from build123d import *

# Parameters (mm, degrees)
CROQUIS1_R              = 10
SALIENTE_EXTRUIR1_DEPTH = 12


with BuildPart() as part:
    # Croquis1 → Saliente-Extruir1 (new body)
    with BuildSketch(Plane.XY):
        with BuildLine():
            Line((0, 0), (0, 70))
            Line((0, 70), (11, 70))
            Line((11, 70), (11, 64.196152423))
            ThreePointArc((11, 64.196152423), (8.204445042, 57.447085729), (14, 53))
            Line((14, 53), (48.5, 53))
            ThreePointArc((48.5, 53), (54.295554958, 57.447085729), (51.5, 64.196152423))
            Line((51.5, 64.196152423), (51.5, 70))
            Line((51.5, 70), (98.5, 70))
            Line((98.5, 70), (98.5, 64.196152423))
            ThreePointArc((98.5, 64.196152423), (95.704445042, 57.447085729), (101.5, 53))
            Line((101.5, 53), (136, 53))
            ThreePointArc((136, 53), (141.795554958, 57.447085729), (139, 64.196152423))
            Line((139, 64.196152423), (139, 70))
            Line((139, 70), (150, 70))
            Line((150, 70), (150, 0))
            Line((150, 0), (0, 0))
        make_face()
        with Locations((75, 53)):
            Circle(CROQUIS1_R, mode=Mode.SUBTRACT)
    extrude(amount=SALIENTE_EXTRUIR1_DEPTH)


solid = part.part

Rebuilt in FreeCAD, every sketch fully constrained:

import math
import FreeCAD as App
import Part
import Sketcher
from FreeCAD import Vector
Q = App.Units.Quantity

doc = App.newDocument("Part")
body = doc.addObject("PartDesign::Body", "Body")

sketch1 = body.newObject("Sketcher::SketchObject", "Sketch")
sketch1.AttachmentSupport = (doc.getObject("XY_Plane"), [""])
sketch1.MapMode = "FlatFace"
sketch1.addGeometry([
    Part.LineSegment(Vector(0, 70, 0), Vector(0, 0, 0)),
    Part.LineSegment(Vector(0, 0, 0), Vector(150, 0, 0)),
    Part.LineSegment(Vector(150, 0, 0), Vector(150, 70, 0)),
    Part.LineSegment(Vector(150, 70, 0), Vector(139, 70, 0)),
    Part.LineSegment(Vector(139, 70, 0), Vector(139, 64, 0)),
    Part.ArcOfCircle(Part.Circle(Vector(136, 59, 0), Vector(0, 0, 1), 6), math.radians(-90), math.radians(60)),
    Part.LineSegment(Vector(136, 53, 0), Vector(102, 53, 0)),
    Part.ArcOfCircle(Part.Circle(Vector(102, 59, 0), Vector(0, 0, 1), 6), math.radians(120), math.radians(270)),
    Part.LineSegment(Vector(98, 64, 0), Vector(98, 70, 0)),
    Part.LineSegment(Vector(98, 70, 0), Vector(52, 70, 0)),
    Part.LineSegment(Vector(52, 70, 0), Vector(52, 64, 0)),
    Part.ArcOfCircle(Part.Circle(Vector(48, 59, 0), Vector(0, 0, 1), 6), math.radians(-90), math.radians(60)),
    Part.LineSegment(Vector(48, 53, 0), Vector(14, 53, 0)),
    Part.ArcOfCircle(Part.Circle(Vector(14, 59, 0), Vector(0, 0, 1), 6), math.radians(120), math.radians(270)),
    Part.LineSegment(Vector(11, 64, 0), Vector(11, 70, 0)),
    Part.LineSegment(Vector(11, 70, 0), Vector(0, 70, 0)),
    Part.Circle(Vector(75, 53, 0), Vector(0, 0, 1), 10),
], False)
sketch1.addConstraint([
    Sketcher.Constraint("Coincident", 0, 2, 1, 1),
    Sketcher.Constraint("Coincident", 1, 2, 2, 1),
    Sketcher.Constraint("Coincident", 2, 2, 3, 1),
    Sketcher.Constraint("Coincident", 3, 2, 4, 1),
    Sketcher.Constraint("Coincident", 4, 2, 5, 2),
    Sketcher.Constraint("Tangent", 5, 1, 6, 1),
    Sketcher.Constraint("Tangent", 6, 2, 7, 2),
    Sketcher.Constraint("Coincident", 7, 1, 8, 1),
    Sketcher.Constraint("Coincident", 8, 2, 9, 1),
    Sketcher.Constraint("Coincident", 9, 2, 10, 1),
    Sketcher.Constraint("Coincident", 10, 2, 11, 2),
    Sketcher.Constraint("Tangent", 11, 1, 12, 1),
    Sketcher.Constraint("Tangent", 12, 2, 13, 2),
    Sketcher.Constraint("Coincident", 13, 1, 14, 1),
    Sketcher.Constraint("Coincident", 14, 2, 15, 1),
    Sketcher.Constraint("Coincident", 15, 2, 0, 1),
    Sketcher.Constraint("Vertical", 0),
    Sketcher.Constraint("Horizontal", 1),
    Sketcher.Constraint("Vertical", 2),
    Sketcher.Constraint("Horizontal", 3),
    Sketcher.Constraint("Vertical", 4),
    Sketcher.Constraint("Horizontal", 6),
    Sketcher.Constraint("Vertical", 8),
    Sketcher.Constraint("Horizontal", 9),
    Sketcher.Constraint("Vertical", 10),
    Sketcher.Constraint("Horizontal", 12),
    Sketcher.Constraint("Vertical", 14),
    Sketcher.Constraint("Horizontal", 15),
    Sketcher.Constraint("Coincident", 0, 2, -1, 1),
    Sketcher.Constraint("Equal", 5, 7),
    Sketcher.Constraint("Equal", 7, 11),
    Sketcher.Constraint("Equal", 11, 13),
    Sketcher.Constraint("Horizontal", 7, 3, 11, 3),
    Sketcher.Constraint("Horizontal", 16, 3, 5, 1),
    Sketcher.Constraint("Horizontal", 4, 2, 7, 1),
    Sketcher.Constraint("Horizontal", 3, 2, 8, 2),
    Sketcher.Constraint("Horizontal", 7, 1, 10, 2),
    Sketcher.Constraint("Horizontal", 10, 2, 13, 1),
    Sketcher.Constraint("Horizontal", 9, 2, 14, 2),
    Sketcher.Constraint("Equal", 6, 12),
    Sketcher.Constraint("Equal", 3, 15),
    Sketcher.Constraint("Diameter", 16, Q("20 mm")),
    Sketcher.Constraint("Radius", 5, Q("6 mm")),
    Sketcher.Constraint("DistanceX", 1, 1, 1, 2, Q("150 mm")),
    Sketcher.Constraint("DistanceX", 3, 2, 3, 1, Q("11 mm")),
    Sketcher.Constraint("DistanceX", 9, 2, 9, 1, Q("47 mm")),
    Sketcher.Constraint("DistanceY", 0, 2, 0, 1, Q("70 mm")),
    Sketcher.Constraint("DistanceX", 6, 2, 6, 1, Q("34.5 mm")),
    Sketcher.Constraint("DistanceY", -1, 1, 5, 3, Q("59 mm")),
    Sketcher.Constraint("DistanceX", -1, 1, 16, 3, Q("75 mm")),
])
pad1 = body.newObject("PartDesign::Pad", "Pad")
pad1.Profile = sketch1
pad1.Length = 12

doc.recompute()
